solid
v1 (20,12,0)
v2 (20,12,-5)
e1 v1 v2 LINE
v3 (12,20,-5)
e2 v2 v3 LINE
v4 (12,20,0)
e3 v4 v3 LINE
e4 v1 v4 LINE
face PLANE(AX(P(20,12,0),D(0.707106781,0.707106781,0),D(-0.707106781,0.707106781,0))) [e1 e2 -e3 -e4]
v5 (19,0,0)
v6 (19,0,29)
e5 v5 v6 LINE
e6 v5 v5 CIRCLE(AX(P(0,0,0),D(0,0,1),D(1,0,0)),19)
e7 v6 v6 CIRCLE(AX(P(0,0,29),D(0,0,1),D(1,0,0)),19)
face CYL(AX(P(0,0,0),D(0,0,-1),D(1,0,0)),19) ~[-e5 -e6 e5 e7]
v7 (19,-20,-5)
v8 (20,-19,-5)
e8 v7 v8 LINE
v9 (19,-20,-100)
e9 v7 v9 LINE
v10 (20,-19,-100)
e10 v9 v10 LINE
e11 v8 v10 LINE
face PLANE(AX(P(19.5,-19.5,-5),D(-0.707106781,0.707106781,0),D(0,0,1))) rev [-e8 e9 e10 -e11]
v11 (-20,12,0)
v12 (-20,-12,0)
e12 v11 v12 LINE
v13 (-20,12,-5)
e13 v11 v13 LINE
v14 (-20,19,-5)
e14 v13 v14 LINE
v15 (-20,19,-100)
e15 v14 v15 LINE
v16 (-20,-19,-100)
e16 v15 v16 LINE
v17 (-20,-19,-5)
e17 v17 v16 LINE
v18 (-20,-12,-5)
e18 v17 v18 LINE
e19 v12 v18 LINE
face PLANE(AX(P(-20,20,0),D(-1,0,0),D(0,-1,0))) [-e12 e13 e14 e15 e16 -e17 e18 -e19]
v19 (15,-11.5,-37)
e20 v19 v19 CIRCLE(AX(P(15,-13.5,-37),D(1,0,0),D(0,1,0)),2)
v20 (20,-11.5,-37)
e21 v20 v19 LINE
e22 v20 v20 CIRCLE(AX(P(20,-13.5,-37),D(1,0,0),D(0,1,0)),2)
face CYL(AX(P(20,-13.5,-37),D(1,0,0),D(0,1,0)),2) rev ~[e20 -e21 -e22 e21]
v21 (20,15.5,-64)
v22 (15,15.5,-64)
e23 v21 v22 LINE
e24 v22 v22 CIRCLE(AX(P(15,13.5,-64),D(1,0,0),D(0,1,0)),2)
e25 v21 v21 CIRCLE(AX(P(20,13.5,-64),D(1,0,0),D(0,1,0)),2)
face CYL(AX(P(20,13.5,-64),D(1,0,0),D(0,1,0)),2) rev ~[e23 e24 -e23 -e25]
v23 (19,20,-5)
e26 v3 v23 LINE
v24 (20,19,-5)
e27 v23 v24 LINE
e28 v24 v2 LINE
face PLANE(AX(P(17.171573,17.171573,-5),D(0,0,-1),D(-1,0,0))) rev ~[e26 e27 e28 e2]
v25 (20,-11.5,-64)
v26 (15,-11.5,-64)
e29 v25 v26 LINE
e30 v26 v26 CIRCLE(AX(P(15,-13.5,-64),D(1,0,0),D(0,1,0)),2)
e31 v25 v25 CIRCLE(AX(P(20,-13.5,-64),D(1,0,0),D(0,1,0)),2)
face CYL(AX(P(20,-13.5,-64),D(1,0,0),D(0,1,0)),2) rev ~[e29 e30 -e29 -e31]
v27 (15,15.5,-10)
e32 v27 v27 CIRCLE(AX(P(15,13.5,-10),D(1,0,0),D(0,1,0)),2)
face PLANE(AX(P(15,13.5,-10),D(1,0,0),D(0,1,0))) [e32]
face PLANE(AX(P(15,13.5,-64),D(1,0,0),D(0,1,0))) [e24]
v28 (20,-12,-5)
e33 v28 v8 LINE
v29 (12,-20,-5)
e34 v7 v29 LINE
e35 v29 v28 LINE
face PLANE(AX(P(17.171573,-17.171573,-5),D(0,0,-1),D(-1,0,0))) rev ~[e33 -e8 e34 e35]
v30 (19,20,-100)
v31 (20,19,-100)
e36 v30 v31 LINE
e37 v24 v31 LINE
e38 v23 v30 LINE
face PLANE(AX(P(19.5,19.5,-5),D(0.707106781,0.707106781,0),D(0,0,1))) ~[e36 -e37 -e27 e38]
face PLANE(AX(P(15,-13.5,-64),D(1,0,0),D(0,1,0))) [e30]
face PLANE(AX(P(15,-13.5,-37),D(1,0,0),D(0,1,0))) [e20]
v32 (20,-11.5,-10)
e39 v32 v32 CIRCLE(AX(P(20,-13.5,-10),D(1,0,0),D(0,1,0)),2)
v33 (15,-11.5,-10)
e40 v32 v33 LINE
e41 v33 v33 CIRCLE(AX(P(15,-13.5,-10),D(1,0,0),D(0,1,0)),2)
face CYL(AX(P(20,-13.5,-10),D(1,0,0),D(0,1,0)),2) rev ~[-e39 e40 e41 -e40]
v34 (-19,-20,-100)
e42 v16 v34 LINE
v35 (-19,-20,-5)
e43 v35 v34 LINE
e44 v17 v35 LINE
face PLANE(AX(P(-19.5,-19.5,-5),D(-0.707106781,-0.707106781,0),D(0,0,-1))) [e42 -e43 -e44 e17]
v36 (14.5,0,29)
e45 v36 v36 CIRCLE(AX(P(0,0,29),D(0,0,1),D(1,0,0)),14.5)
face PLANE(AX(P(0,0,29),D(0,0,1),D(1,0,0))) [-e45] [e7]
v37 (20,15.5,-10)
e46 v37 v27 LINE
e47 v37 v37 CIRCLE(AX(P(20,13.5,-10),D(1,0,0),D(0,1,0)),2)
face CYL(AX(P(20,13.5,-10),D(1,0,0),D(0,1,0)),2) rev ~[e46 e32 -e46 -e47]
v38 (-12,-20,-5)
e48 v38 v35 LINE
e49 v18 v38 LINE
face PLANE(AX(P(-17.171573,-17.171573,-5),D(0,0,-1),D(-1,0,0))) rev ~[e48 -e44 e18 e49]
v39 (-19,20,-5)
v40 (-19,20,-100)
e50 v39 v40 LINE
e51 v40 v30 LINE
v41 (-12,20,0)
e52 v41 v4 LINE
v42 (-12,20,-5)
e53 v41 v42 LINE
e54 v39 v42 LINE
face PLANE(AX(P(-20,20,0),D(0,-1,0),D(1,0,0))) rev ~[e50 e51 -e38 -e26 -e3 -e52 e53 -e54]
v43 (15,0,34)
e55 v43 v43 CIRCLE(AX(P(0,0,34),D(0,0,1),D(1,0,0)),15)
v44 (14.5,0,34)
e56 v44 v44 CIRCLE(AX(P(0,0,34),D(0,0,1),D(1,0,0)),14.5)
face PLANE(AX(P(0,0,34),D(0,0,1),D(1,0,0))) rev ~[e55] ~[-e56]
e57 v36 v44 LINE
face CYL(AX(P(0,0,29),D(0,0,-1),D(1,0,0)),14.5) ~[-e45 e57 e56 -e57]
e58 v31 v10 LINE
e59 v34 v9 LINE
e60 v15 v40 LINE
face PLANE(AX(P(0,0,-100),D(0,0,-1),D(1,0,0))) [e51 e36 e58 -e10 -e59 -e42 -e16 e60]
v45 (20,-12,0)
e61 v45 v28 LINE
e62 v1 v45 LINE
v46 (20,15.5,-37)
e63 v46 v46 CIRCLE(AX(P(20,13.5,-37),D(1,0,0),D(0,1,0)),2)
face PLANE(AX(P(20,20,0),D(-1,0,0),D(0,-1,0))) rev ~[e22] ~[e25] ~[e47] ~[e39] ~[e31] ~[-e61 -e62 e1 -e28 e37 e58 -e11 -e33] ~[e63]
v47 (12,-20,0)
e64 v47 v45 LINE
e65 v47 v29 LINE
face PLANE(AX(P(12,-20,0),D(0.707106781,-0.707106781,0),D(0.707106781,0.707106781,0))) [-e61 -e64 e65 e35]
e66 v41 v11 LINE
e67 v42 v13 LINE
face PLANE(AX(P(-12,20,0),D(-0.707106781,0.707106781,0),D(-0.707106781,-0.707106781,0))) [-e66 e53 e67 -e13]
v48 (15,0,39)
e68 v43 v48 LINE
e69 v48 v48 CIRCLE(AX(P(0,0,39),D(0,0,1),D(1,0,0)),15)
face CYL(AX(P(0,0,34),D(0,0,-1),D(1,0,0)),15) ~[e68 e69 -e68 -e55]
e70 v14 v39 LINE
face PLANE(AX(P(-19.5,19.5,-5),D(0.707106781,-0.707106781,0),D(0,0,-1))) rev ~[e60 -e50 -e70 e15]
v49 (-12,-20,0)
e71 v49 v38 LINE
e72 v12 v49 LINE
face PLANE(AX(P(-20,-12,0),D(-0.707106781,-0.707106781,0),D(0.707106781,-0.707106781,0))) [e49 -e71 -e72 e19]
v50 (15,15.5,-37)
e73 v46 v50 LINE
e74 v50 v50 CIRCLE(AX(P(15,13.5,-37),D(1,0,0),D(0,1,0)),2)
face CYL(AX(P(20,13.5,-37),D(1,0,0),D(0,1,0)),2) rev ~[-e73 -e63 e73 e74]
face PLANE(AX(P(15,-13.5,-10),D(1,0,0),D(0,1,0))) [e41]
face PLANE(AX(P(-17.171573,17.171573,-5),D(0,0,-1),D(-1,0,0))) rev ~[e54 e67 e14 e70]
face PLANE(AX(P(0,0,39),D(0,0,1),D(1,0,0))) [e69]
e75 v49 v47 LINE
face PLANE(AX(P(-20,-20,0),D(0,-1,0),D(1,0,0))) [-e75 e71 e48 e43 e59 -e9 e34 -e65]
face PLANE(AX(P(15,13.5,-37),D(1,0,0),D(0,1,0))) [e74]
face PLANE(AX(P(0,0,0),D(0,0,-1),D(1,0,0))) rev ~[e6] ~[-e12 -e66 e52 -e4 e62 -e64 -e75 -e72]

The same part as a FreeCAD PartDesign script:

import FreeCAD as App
import Part
import Sketcher
Q = App.Units.Quantity


def edges_at(feature, points):
    """Names of the edges that pass closest to the given points."""
    edges = feature.Shape.Edges
    near = lambda p: min(range(len(edges)), key=lambda i: edges[i].distToShape(Part.Vertex(*p))[0])
    return sorted({f"Edge{near(p) + 1}" for p in points})


def add_polygon(sketch, points):
    """Adds a closed chain of lines whose ends are joined by coincident constraints."""
    first, n = sketch.GeometryCount, len(points)
    for a, b in zip(points, points[1:] + points[:1]):
        sketch.addGeometry(Part.LineSegment(App.Vector(*a, 0), App.Vector(*b, 0)), False)
    for i in range(n):
        sketch.addConstraint(Sketcher.Constraint("Coincident", first + i, 2, first + (i + 1) % n, 1))

doc = App.newDocument("Part")
body = doc.addObject("PartDesign::Body", "Body")

sketch1 = body.newObject("Sketcher::SketchObject", "Sketch")
sketch1.AttachmentSupport = (doc.getObject("XY_Plane"), [""])
sketch1.MapMode = "FlatFace"
sketch1.addGeometry(Part.Circle(App.Vector(0, 0, 0), App.Vector(0, 0, 1), 19), False)
sketch1.addConstraint([
    Sketcher.Constraint("Coincident", 0, 3, -1, 1),
    Sketcher.Constraint("Diameter", 0, Q("38 mm")),
])
pad1 = body.newObject("PartDesign::Pad", "Pad")
pad1.Profile = sketch1
pad1.Length = 29

sketch2 = body.newObject("Sketcher::SketchObject", "Sketch001")
sketch2.AttachmentSupport = (doc.getObject("XY_Plane"), [""])
sketch2.MapMode = "FlatFace"
add_polygon(sketch2, [(-20, -20), (-20, 20), (20, 20), (20, -20)])
sketch2.addConstraint([
    Sketcher.Constraint("Vertical", 0),
    Sketcher.Constraint("Horizontal", 1),
    Sketcher.Constraint("Vertical", 2),
    Sketcher.Constraint("Horizontal", 3),
    Sketcher.Constraint("Symmetric", 0, 2, 2, 2, -1, 1),
    Sketcher.Constraint("Equal", 3, 0),
    Sketcher.Constraint("DistanceX", 1, 1, 1, 2, Q("40 mm")),
])
pad2 = body.newObject("PartDesign::Pad", "Pad001")
pad2.Profile = sketch2
pad2.Length = 100
pad2.Reversed = True

sketch3 = body.newObject("Sketcher::SketchObject", "Sketch002")
sketch3.AttachmentSupport = (doc.getObject("XY_Plane"), [""])
sketch3.MapMode = "FlatFace"
add_polygon(sketch3, [(-20, 20), (-20, 12), (-12, 20)])
add_polygon(sketch3, [(20, 20), (12, 20), (20, 12)])
add_polygon(sketch3, [(20, -20), (20, -12), (12, -20)])
add_polygon(sketch3, [(-20, -20), (-12, -20), (-20, -12)])
sketch3.addConstraint([
    Sketcher.Constraint("Vertical", 0),
    Sketcher.Constraint("Horizontal", 2),
    Sketcher.Constraint("Horizontal", 3),
    Sketcher.Constraint("Vertical", 5),
    Sketcher.Constraint("Vertical", 6),
    Sketcher.Constraint("Horizontal", 8),
    Sketcher.Constraint("Horizontal", 9),
    Sketcher.Constraint("Vertical", 11),
    Sketcher.Constraint("Symmetric", 0, 2, 6, 2, -1, 1),
    Sketcher.Constraint("Symmetric", 1, 2, 7, 2, -1, 1),
    Sketcher.Constraint("Symmetric", 3, 2, 9, 2, -1, 1),
    Sketcher.Constraint("Symmetric", 4, 2, 10, 2, -1, 1),
    Sketcher.Constraint("Symmetric", 1, 2, 3, 2, -2),
    Sketcher.Constraint("Symmetric", 0, 2, 4, 2, -2),
    Sketcher.Constraint("Perpendicular", 1, 4),
    Sketcher.Constraint("DistanceX", 2, 2, 2, 1, Q("8 mm")),
    Sketcher.Constraint("DistanceX", 0, 2, -1, 1, Q("20 mm")),
    Sketcher.Constraint("DistanceY", -1, 1, 0, 2, Q("12 mm")),
])
pocket1 = body.newObject("PartDesign::Pocket", "Pocket")
pocket1.Profile = sketch3
pocket1.Length = 5
doc.recompute()

chamfer = body.newObject("PartDesign::Chamfer", "Chamfer")
chamfer.Base = (pocket1, edges_at(pocket1, [
    (-20, -20, -52.5),
    (20, -20, -52.5),
    (20, 20, -52.5),
    (-20, 20, -52.5),
]))
chamfer.Size = 1

sketch4 = body.newObject("Sketcher::SketchObject", "Sketch003")
sketch4.AttachmentSupport = (doc.getObject("XY_Plane"), [""])
sketch4.MapMode = "FlatFace"
sketch4.AttachmentOffset = App.Placement(App.Vector(0, 0, 29), App.Rotation())
sketch4.addGeometry(Part.Circle(App.Vector(0, 0, 0), App.Vector(0, 0, 1), 14.5), False)
sketch4.addConstraint([
    Sketcher.Constraint("Coincident", 0, 3, -1, 1),
    Sketcher.Constraint("Diameter", 0, Q("29 mm")),
])
pad3 = body.newObject("PartDesign::Pad", "Pad002")
pad3.Profile = sketch4
pad3.Length = 5

sketch5 = body.newObject("Sketcher::SketchObject", "Sketch004")
sketch5.AttachmentSupport = (doc.getObject("XY_Plane"), [""])
sketch5.MapMode = "FlatFace"
sketch5.AttachmentOffset = App.Placement(App.Vector(0, 0, 34), App.Rotation())
sketch5.addGeometry(Part.Circle(App.Vector(0, 0, 0), App.Vector(0, 0, 1), 15), False)
sketch5.addConstraint([
    Sketcher.Constraint("Coincident", 0, 3, -1, 1),
    Sketcher.Constraint("Diameter", 0, Q("30 mm")),
])
pad4 = body.newObject("PartDesign::Pad", "Pad003")
pad4.Profile = sketch5
pad4.Length = 5

sketch6 = body.newObject("Sketcher::SketchObject", "Sketch005")
sketch6.AttachmentSupport = (doc.getObject("YZ_Plane"), [""])
sketch6.MapMode = "FlatFace"
sketch6.AttachmentOffset = App.Placement(App.Vector(0, 0, 20), App.Rotation())
sketch6.addGeometry([
    Part.Circle(App.Vector(-13.5, -10, 0), App.Vector(0, 0, 1), 2),
    Part.Circle(App.Vector(13.5, -10, 0), App.Vector(0, 0, 1), 2),
    Part.Circle(App.Vector(13.5, -37, 0), App.Vector(0, 0, 1), 2),
    Part.Circle(App.Vector(-13.5, -37, 0), App.Vector(0, 0, 1), 2),
    Part.Circle(App.Vector(13.5, -64, 0), App.Vector(0, 0, 1), 2),
    Part.Circle(App.Vector(-13.5, -64, 0), App.Vector(0, 0, 1), 2),
], False)
sketch6.addConstraint([
    Sketcher.Constraint("Equal", 0, 1),
    Sketcher.Constraint("Equal", 1, 2),
    Sketcher.Constraint("Equal", 2, 3),
    Sketcher.Constraint("Equal", 3, 4),
    Sketcher.Constraint("Equal", 4, 5),
    Sketcher.Constraint("Symmetric", 0, 3, 1, 3, -2),
    Sketcher.Constraint("Symmetric", 2, 3, 3, 3, -2),
    Sketcher.Constraint("Symmetric", 4, 3, 5, 3, -2),
    Sketcher.Constraint("Vertical", 1, 3, 2, 3),
    Sketcher.Constraint("Vertical", 2, 3, 4, 3),
    Sketcher.Constraint("Diameter", 0, Q("4 mm")),
    Sketcher.Constraint("DistanceY", 0, 3, -1, 1, Q("10 mm")),
    Sketcher.Constraint("DistanceY", 2, 3, -1, 1, Q("37 mm")),
    Sketcher.Constraint("DistanceY", 4, 3, -1, 1, Q("64 mm")),
    Sketcher.Constraint("DistanceX", 0, 3, 1, 3, Q("27 mm")),
])
pocket2 = body.newObject("PartDesign::Pocket", "Pocket001")
pocket2.Profile = sketch6
pocket2.Length = 5

doc.recompute()
